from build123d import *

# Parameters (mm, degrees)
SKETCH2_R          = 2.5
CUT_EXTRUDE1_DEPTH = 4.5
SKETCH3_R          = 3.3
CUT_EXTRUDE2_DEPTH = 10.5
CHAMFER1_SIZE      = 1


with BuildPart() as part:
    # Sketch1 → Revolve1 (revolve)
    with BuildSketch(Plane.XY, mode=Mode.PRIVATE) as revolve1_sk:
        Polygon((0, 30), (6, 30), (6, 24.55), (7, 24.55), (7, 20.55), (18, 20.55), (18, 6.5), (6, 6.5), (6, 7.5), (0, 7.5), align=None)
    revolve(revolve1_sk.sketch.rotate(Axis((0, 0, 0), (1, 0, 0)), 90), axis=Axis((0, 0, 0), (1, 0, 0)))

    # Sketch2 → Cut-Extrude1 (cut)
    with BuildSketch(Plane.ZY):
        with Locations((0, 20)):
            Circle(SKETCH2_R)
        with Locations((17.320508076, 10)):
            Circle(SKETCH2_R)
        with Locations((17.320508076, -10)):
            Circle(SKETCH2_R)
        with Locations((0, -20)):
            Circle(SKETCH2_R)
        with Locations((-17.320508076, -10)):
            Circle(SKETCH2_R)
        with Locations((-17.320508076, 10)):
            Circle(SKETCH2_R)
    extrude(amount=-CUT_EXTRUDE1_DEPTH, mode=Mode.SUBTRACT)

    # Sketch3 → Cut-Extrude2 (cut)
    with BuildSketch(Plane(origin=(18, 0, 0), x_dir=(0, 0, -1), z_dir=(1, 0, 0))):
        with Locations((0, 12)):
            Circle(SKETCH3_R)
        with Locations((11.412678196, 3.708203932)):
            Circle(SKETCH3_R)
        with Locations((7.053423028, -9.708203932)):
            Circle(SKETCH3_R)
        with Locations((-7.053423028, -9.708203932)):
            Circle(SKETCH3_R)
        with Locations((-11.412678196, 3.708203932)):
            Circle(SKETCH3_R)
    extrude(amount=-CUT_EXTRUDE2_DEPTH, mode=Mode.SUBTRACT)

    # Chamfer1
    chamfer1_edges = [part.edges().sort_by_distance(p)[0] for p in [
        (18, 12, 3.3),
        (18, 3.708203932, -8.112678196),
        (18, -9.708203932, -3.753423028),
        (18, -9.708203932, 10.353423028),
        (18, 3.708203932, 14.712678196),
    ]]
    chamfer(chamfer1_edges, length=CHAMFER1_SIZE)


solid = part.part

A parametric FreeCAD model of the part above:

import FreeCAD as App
import Part
import Sketcher

V = App.Vector


def edges_at(feature, points):
    """Names of the edges that pass closest to the given points."""
    edges = feature.Shape.Edges
    near = lambda p: min(range(len(edges)), key=lambda i: edges[i].distToShape(Part.Vertex(*p))[0])
    return sorted({f"Edge{near(p) + 1}" for p in points})

doc = App.newDocument("Part")
body = doc.addObject("PartDesign::Body", "Body")

# Sketch on XY plane
sketch1 = doc.addObject("Sketcher::SketchObject", "Sketch")
body.addObject(sketch1)
sketch1.AttachmentSupport = (doc.XY_Plane, [""])
sketch1.MapMode = "FlatFace"
sketch1.addGeometry([
    Part.LineSegment(V(6, 30, 0), V(0, 30, 0)),  # 0
    Part.LineSegment(V(0, 30, 0), V(0, 7.5, 0)),  # 1
    Part.LineSegment(V(0, 7.5, 0), V(6, 7.5, 0)),  # 2
    Part.LineSegment(V(6, 7.5, 0), V(6, 6.5, 0)),  # 3
    Part.LineSegment(V(6, 6.5, 0), V(18, 6.5, 0)),  # 4
    Part.LineSegment(V(18, 6.5, 0), V(18, 20.6, 0)),  # 5
    Part.LineSegment(V(18, 20.6, 0), V(7, 20.6, 0)),  # 6
    Part.LineSegment(V(7, 20.6, 0), V(7, 24.6, 0)),  # 7
    Part.LineSegment(V(7, 24.6, 0), V(6, 24.6, 0)),  # 8
    Part.LineSegment(V(6, 24.6, 0), V(6, 30, 0)),  # 9
], False)
sketch1.addConstraint([
    Sketcher.Constraint("Coincident", 0, 2, 1, 1),
    Sketcher.Constraint("Coincident", 1, 2, 2, 1),
    Sketcher.Constraint("Coincident", 2, 2, 3, 1),
    Sketcher.Constraint("Coincident", 3, 2, 4, 1),
    Sketcher.Constraint("Coincident", 4, 2, 5, 1),
    Sketcher.Constraint("Coincident", 5, 2, 6, 1),
    Sketcher.Constraint("Coincident", 6, 2, 7, 1),
    Sketcher.Constraint("Coincident", 7, 2, 8, 1),
    Sketcher.Constraint("Coincident", 8, 2, 9, 1),
    Sketcher.Constraint("Coincident", 9, 2, 0, 1),
    Sketcher.Constraint("Horizontal", 0),
    Sketcher.Constraint("Vertical", 1),
    Sketcher.Constraint("Horizontal", 2),
    Sketcher.Constraint("Vertical", 3),
    Sketcher.Constraint("Horizontal", 4),
    Sketcher.Constraint("Vertical", 5),
    Sketcher.Constraint("Horizontal", 6),
    Sketcher.Constraint("Vertical", 7),
    Sketcher.Constraint("Horizontal", 8),
    Sketcher.Constraint("Vertical", 9),
    Sketcher.Constraint("PointOnObject", 0, 2, -2),
    Sketcher.Constraint("Vertical", 3, 2, 8, 2),
    Sketcher.Constraint("Equal", 8, 3),
    Sketcher.Constraint("DistanceX", 0, 2, 0, 1, 6.0),
    Sketcher.Constraint("DistanceX", 4, 1, 4, 2, 12.0),
    Sketcher.Constraint("DistanceX", 6, 2, 6, 1, 11.0),
    Sketcher.Constraint("DistanceY", 7, 1, 7, 2, 4.0),
    Sketcher.Constraint("DistanceY", 1, 2, 1, 1, 22.5),
    Sketcher.Constraint("DistanceY", -1, 1, 0, 2, 30.0),
    Sketcher.Constraint("DistanceY", 5, 1, 5, 2, 14.05),
])
revolution = doc.addObject("PartDesign::Revolution", "Revolution")
body.addObject(revolution)
revolution.Profile = sketch1
revolution.ReferenceAxis = (sketch1, ["H_Axis"])
revolution.Angle = 360

# Sketch on YZ plane
sketch2 = doc.addObject("Sketcher::SketchObject", "Sketch001")
body.addObject(sketch2)
sketch2.AttachmentSupport = (doc.YZ_Plane, [""])
sketch2.MapMode = "FlatFace"
sketch2.addGeometry([
    Part.Circle(V(20, 0, 0), V(0, 0, 1), 2.5),  # 0
    Part.Circle(V(10, 17.3, 0), V(0, 0, 1), 2.5),  # 1
    Part.Circle(V(-10, 17.3, 0), V(0, 0, 1), 2.5),  # 2
    Part.Circle(V(-20, 0, 0), V(0, 0, 1), 2.5),  # 3
    Part.Circle(V(-10, -17.3, 0), V(0, 0, 1), 2.5),  # 4
    Part.Circle(V(10, -17.3, 0), V(0, 0, 1), 2.5),  # 5
], False)
sketch2.addConstraint([
    Sketcher.Constraint("Equal", 0, 1),
    Sketcher.Constraint("Equal", 1, 2),
    Sketcher.Constraint("Equal", 2, 3),
    Sketcher.Constraint("Equal", 3, 4),
    Sketcher.Constraint("Equal", 4, 5),
    Sketcher.Constraint("Symmetric", 0, 3, 3, 3, -1, 1),
    Sketcher.Constraint("Symmetric", 1, 3, 4, 3, -1, 1),
    Sketcher.Constraint("Symmetric", 2, 3, 5, 3, -1, 1),
    Sketcher.Constraint("Symmetric", 1, 3, 2, 3, -2),
    Sketcher.Constraint("PointOnObject", 0, 3, -1),
    Sketcher.Constraint("Diameter", 0, 5.0),
    Sketcher.Constraint("DistanceX", -1, 1, 0, 3, 20.0),
    Sketcher.Constraint("DistanceX", -1, 1, 1, 3, 10.0),
    Sketcher.Constraint("DistanceY", -1, 1, 1, 3, 17.320508),
])
pocket1 = doc.addObject("PartDesign::Pocket", "Pocket")
body.addObject(pocket1)
pocket1.Profile = sketch2
pocket1.Length = 4.5
pocket1.Reversed = True

# Sketch on YZ plane
sketch3 = doc.addObject("Sketcher::SketchObject", "Sketch002")
body.addObject(sketch3)
sketch3.AttachmentSupport = (doc.YZ_Plane, [""])
sketch3.MapMode = "FlatFace"
sketch3.AttachmentOffset = App.Placement(V(0, 0, 18), App.Rotation())
sketch3.addGeometry([
    Part.Circle(V(12, 0, 0), V(0, 0, 1), 3.3),  # 0
    Part.Circle(V(3.7, -11.4, 0), V(0, 0, 1), 3.3),  # 1
    Part.Circle(V(-9.7, -7.1, 0), V(0, 0, 1), 3.3),  # 2
    Part.Circle(V(-9.7, 7.1, 0), V(0, 0, 1), 3.3),  # 3
    Part.Circle(V(3.7, 11.4, 0), V(0, 0, 1), 3.3),  # 4
], False)
sketch3.addConstraint([
    Sketcher.Constraint("Equal", 0, 1),
    Sketcher.Constraint("Equal", 1, 2),
    Sketcher.Constraint("Equal", 2, 3),
    Sketcher.Constraint("Equal", 3, 4),
    Sketcher.Constraint("Symmetric", 2, 3, 3, 3, -1),
    Sketcher.Constraint("Symmetric", 1, 3, 4, 3, -1),
    Sketcher.Constraint("PointOnObject", 0, 3, -1),
    Sketcher.Constraint("Diameter", 0, 6.6),
    Sketcher.Constraint("DistanceX", -1, 1, 0, 3, 12.0),
    Sketcher.Constraint("DistanceY", 1, 3, 3, 3, 18.466101),
    Sketcher.Constraint("DistanceY", 1, 3, -1, 1, 11.412678),
    Sketcher.Constraint("DistanceX", -1, 1, 1, 3, 3.708204),
    Sketcher.Constraint("DistanceX", 2, 3, -1, 1, 9.708204),
])
pocket2 = doc.addObject("PartDesign::Pocket", "Pocket001")
body.addObject(pocket2)
pocket2.Profile = sketch3
pocket2.Length = 10.5
doc.recompute()

chamfer = doc.addObject("PartDesign::Chamfer", "Chamfer")
body.addObject(chamfer)
chamfer.Base = (pocket2, edges_at(pocket2, [
    (18, 12, 3.3),
    (18, 3.708, -8.113),
    (18, -9.708, -3.753),
    (18, -9.708, 10.353),
    (18, 3.708, 14.713),
]))
chamfer.Size = 1

doc.recompute()
